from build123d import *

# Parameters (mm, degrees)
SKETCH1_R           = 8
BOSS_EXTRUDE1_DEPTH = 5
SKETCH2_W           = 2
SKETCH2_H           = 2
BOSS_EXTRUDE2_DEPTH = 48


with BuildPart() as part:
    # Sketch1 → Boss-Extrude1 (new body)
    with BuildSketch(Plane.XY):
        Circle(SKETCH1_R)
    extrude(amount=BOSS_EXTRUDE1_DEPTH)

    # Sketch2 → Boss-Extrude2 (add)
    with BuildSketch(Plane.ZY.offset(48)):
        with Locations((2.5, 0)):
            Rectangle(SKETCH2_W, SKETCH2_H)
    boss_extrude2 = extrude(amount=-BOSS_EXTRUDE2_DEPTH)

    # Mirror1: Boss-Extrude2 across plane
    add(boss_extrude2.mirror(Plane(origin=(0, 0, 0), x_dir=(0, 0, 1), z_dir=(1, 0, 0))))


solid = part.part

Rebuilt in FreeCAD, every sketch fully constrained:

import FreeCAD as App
import Part
import Sketcher

V = App.Vector


def add_polygon(sketch, points):
    """Adds a closed chain of lines whose ends are joined by coincident constraints."""
    first, n = sketch.GeometryCount, len(points)
    for a, b in zip(points, points[1:] + points[:1]):
        sketch.addGeometry(Part.LineSegment(App.Vector(*a, 0), App.Vector(*b, 0)), False)
    for i in range(n):
        sketch.addConstraint(Sketcher.Constraint("Coincident", first + i, 2, first + (i + 1) % n, 1))

doc = App.newDocument("Part")
body = doc.addObject("PartDesign::Body", "Body")

# Sketch on XY plane
sketch1 = body.newObject("Sketcher::SketchObject", "Sketch")
sketch1.AttachmentSupport = (doc.getObject("XY_Plane"), [""])
sketch1.MapMode = "FlatFace"
sketch1.addGeometry(Part.Circle(V(0, 0, 0), V(0, 0, 1), 8), False)
sketch1.addConstraint([
    Sketcher.Constraint("Coincident", 0, 3, -1, 1),
    Sketcher.Constraint("Diameter", 0, 16.0),
])
pad1 = body.newObject("PartDesign::Pad", "Pad")
pad1.Profile = sketch1
pad1.Length = 5

# Sketch on YZ plane
sketch2 = body.newObject("Sketcher::SketchObject", "Sketch001")
sketch2.AttachmentSupport = (doc.getObject("YZ_Plane"), [""])
sketch2.MapMode = "FlatFace"
sketch2.AttachmentOffset = App.Placement(V(0, 0, -48), App.Rotation())
add_polygon(sketch2, [(1, 1.5), (-1, 1.5), (-1, 3.5), (1, 3.5)])  # lines 0-3
sketch2.addConstraint([
    Sketcher.Constraint("Horizontal", 0),
    Sketcher.Constraint("Vertical", 1),
    Sketcher.Constraint("Horizontal", 2),
    Sketcher.Constraint("Vertical", 3),
    Sketcher.Constraint("Equal", 2, 1),
    Sketcher.Constraint("DistanceX", 0, 2, 0, 1, 2.0),
    Sketcher.Constraint("DistanceX", 0, 2, -1, 1, 1.0),
    Sketcher.Constraint("DistanceY", -1, 1, 0, 2, 1.5),
])
pad2 = body.newObject("PartDesign::Pad", "Pad001")
pad2.Profile = sketch2
pad2.Length = 48
doc.recompute()

mirrored = body.newObject("PartDesign::Mirrored", "Mirrored")
mirrored.Originals = [pad2]
mirrored.MirrorPlane = (doc.getObject("YZ_Plane"), [""])
body.Tip = mirrored

doc.recompute()
